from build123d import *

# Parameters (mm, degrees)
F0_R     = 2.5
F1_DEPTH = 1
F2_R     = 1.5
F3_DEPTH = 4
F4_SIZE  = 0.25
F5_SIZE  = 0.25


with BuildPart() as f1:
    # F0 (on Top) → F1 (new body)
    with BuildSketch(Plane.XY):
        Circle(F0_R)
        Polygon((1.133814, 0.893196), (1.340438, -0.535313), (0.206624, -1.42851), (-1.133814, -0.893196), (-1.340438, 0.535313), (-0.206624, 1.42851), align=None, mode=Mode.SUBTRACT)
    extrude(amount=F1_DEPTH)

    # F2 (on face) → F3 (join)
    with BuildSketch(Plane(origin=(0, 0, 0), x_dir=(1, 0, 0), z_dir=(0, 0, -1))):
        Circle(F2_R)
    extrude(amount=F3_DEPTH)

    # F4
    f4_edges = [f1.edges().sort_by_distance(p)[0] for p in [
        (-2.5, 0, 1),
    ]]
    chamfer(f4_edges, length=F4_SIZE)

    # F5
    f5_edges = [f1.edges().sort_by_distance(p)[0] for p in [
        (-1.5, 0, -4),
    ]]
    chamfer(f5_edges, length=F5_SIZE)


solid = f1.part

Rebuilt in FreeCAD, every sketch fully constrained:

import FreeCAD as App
import Part
import Sketcher
from FreeCAD import Vector


def edges_at(feature, points):
    """Names of the edges that pass closest to the given points."""
    edges = feature.Shape.Edges
    near = lambda p: min(range(len(edges)), key=lambda i: edges[i].distToShape(Part.Vertex(*p))[0])
    return sorted({f"Edge{near(p) + 1}" for p in points})

doc = App.newDocument("Part")
body = doc.addObject("PartDesign::Body", "Body")

# Sketch on XY plane
sketch1 = body.newObject("Sketcher::SketchObject", "Sketch")
sketch1.AttachmentSupport = (doc.getObject("XY_Plane"), [""])
sketch1.MapMode = "FlatFace"
sketch1.addGeometry(Part.Circle(Vector(0, 0, 0), Vector(0, 0, 1), 2.5), False)
sketch1.addGeometry(Part.LineSegment(Vector(-0.2, 1.4, 0), Vector(1.1, 0.9, 0)), False)
sketch1.addGeometry(Part.LineSegment(Vector(1.1, 0.9, 0), Vector(1.3, -0.5, 0)), False)
sketch1.addGeometry(Part.LineSegment(Vector(1.3, -0.5, 0), Vector(0.2, -1.4, 0)), False)
sketch1.addGeometry(Part.LineSegment(Vector(0.2, -1.4, 0), Vector(-1.1, -0.9, 0)), False)
sketch1.addGeometry(Part.LineSegment(Vector(-1.1, -0.9, 0), Vector(-1.3, 0.5, 0)), False)
sketch1.addGeometry(Part.LineSegment(Vector(-1.3, 0.5, 0), Vector(-0.2, 1.4, 0)), False)
sketch1.addConstraint(Sketcher.Constraint("Coincident", 1, 2, 2, 1))
sketch1.addConstraint(Sketcher.Constraint("Coincident", 2, 2, 3, 1))
sketch1.addConstraint(Sketcher.Constraint("Coincident", 3, 2, 4, 1))
sketch1.addConstraint(Sketcher.Constraint("Coincident", 4, 2, 5, 1))
sketch1.addConstraint(Sketcher.Constraint("Coincident", 5, 2, 6, 1))
sketch1.addConstraint(Sketcher.Constraint("Coincident", 6, 2, 1, 1))
sketch1.addConstraint(Sketcher.Constraint("Coincident", 0, 3, -1, 1))
sketch1.addConstraint(Sketcher.Constraint("Symmetric", 1, 2, 4, 2, -1, 1))
sketch1.addConstraint(Sketcher.Constraint("Symmetric", 2, 2, 5, 2, -1, 1))
sketch1.addConstraint(Sketcher.Constraint("Symmetric", 3, 2, 6, 2, -1, 1))
sketch1.addConstraint(Sketcher.Constraint("Equal", 1, 2))
sketch1.addConstraint(Sketcher.Constraint("Equal", 2, 3))
sketch1.addConstraint(Sketcher.Constraint("Diameter", 0, 5.0))
sketch1.addConstraint(Sketcher.Constraint("DistanceY", 3, 2, -1, 1, 1.42851))
sketch1.addConstraint(Sketcher.Constraint("DistanceY", 2, 2, 1, 2, 1.428509))
sketch1.addConstraint(Sketcher.Constraint("DistanceX", 3, 2, 1, 2, 0.92719))
sketch1.addConstraint(Sketcher.Constraint("DistanceX", 4, 2, 2, 2, 2.474252))
pad1 = body.newObject("PartDesign::Pad", "Pad")
pad1.Profile = sketch1
pad1.Length = 1

# Sketch on XY plane
sketch2 = body.newObject("Sketcher::SketchObject", "Sketch001")
sketch2.AttachmentSupport = (doc.getObject("XY_Plane"), [""])
sketch2.MapMode = "FlatFace"
sketch2.addGeometry(Part.Circle(Vector(0, 0, 0), Vector(0, 0, 1), 1.5), False)
sketch2.addConstraint(Sketcher.Constraint("Coincident", 0, 3, -1, 1))
sketch2.addConstraint(Sketcher.Constraint("Diameter", 0, 3.0))
pad2 = body.newObject("PartDesign::Pad", "Pad001")
pad2.Profile = sketch2
pad2.Length = 4
pad2.Reversed = True
doc.recompute()

chamfer = body.newObject("PartDesign::Chamfer", "Chamfer")
chamfer.Base = (pad2, edges_at(pad2, [(-2.5, 0, 1)]))
chamfer.Size = 0.25
doc.recompute()

chamfer2 = body.newObject("PartDesign::Chamfer", "Chamfer001")
chamfer2.Base = (chamfer, edges_at(chamfer, [(-1.5, 0, -4)]))
chamfer2.Size = 0.25

doc.recompute()
